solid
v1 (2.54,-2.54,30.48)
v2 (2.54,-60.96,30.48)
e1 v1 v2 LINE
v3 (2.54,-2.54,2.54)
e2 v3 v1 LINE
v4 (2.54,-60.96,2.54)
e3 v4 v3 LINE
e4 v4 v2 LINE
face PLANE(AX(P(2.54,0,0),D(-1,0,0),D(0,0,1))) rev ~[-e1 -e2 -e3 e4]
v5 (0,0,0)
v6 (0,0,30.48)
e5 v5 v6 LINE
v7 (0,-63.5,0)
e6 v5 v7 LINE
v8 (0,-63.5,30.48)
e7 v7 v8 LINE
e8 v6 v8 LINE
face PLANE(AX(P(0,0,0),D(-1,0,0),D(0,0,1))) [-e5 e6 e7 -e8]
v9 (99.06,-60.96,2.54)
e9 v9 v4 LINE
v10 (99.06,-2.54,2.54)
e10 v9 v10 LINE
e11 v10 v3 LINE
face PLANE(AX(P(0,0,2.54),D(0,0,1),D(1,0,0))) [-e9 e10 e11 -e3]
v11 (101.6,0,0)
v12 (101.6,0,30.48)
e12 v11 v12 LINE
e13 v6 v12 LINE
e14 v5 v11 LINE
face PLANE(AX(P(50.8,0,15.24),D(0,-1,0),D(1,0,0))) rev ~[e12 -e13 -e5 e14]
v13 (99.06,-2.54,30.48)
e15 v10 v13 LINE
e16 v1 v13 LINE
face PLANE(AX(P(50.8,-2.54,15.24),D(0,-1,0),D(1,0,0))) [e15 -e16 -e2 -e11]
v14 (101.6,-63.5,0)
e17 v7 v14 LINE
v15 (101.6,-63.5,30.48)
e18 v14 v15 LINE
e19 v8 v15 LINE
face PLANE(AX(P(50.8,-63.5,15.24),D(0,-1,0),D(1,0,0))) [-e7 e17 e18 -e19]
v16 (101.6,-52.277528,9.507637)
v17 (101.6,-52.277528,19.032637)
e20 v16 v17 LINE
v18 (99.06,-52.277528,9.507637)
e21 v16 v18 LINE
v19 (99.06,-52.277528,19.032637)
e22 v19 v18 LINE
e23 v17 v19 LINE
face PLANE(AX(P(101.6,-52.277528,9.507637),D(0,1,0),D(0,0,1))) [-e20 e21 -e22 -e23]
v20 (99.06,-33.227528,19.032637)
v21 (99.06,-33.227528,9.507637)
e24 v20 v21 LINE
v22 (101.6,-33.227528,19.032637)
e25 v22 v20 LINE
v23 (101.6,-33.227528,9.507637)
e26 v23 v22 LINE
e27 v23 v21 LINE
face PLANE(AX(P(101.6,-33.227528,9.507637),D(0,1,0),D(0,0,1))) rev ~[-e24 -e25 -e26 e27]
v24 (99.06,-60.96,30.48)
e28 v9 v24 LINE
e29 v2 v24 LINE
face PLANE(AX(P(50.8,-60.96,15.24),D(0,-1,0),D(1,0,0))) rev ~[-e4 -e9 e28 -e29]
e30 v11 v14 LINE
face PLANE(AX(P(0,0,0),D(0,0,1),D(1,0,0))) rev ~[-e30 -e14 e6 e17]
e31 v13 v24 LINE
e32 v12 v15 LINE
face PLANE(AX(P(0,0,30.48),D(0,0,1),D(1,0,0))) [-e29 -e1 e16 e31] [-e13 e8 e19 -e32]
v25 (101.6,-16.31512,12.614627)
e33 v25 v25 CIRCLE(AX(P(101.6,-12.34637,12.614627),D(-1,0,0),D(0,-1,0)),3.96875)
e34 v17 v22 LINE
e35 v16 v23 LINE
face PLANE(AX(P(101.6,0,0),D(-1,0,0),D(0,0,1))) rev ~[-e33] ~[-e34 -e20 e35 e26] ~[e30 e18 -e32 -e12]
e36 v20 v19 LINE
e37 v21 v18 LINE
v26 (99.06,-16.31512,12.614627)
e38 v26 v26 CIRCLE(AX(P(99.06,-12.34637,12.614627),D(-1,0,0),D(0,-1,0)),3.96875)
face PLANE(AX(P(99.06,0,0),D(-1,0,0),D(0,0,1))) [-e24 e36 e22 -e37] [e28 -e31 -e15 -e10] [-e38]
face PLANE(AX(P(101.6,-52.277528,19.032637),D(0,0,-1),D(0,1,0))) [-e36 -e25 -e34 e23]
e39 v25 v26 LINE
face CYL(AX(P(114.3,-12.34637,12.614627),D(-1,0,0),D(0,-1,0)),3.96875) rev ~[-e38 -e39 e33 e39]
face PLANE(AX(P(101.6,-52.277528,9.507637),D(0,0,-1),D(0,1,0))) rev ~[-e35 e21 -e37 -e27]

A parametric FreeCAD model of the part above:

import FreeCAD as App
import Part
import Sketcher
from FreeCAD import Vector
Q = App.Units.Quantity


def faces_at(feature, points):
    """Names of the faces that lie closest to the given points."""
    faces = feature.Shape.Faces
    near = lambda p: min(range(len(faces)), key=lambda i: faces[i].distToShape(Part.Vertex(*p))[0])
    return sorted({f"Face{near(p) + 1}" for p in points})

doc = App.newDocument("Part")
body = doc.addObject("PartDesign::Body", "Body")

# Sketch on XZ plane
sketch1 = body.newObject("Sketcher::SketchObject", "Sketch")
sketch1.AttachmentSupport = (doc.getObject("XZ_Plane"), [""])
sketch1.MapMode = "FlatFace"
sketch1.addGeometry([
    Part.LineSegment(Vector(0, 30, 0), Vector(0, 0, 0)),
    Part.LineSegment(Vector(0, 0, 0), Vector(102, 0, 0)),
    Part.LineSegment(Vector(102, 0, 0), Vector(102, 30, 0)),
    Part.LineSegment(Vector(102, 30, 0), Vector(0, 30, 0)),
], False)
sketch1.addConstraint([
    Sketcher.Constraint("Coincident", 0, 2, 1, 1),
    Sketcher.Constraint("Coincident", 1, 2, 2, 1),
    Sketcher.Constraint("Coincident", 2, 2, 3, 1),
    Sketcher.Constraint("Coincident", 3, 2, 0, 1),
    Sketcher.Constraint("Vertical", 0),
    Sketcher.Constraint("Horizontal", 1),
    Sketcher.Constraint("Vertical", 2),
    Sketcher.Constraint("Horizontal", 3),
    Sketcher.Constraint("Coincident", 0, 2, -1, 1),
    Sketcher.Constraint("DistanceX", 1, 1, 1, 2, Q("4 in")),
    Sketcher.Constraint("DistanceY", 0, 2, 0, 1, Q("1.2 in")),
])
pad1 = body.newObject("PartDesign::Pad", "Pad")
pad1.Profile = sketch1
pad1.Length = Q("2.5 in")
doc.recompute()

thickness = body.newObject("PartDesign::Thickness", "Thickness")
thickness.Base = (pad1, faces_at(pad1, [(50.8, -31.75, 30.48)]))
thickness.Value = Q("0.1 in")
thickness.Reversed = True
thickness.Join = "Arc"

# Sketch on YZ plane
sketch2 = body.newObject("Sketcher::SketchObject", "Sketch001")
sketch2.AttachmentSupport = (doc.getObject("YZ_Plane"), [""])
sketch2.MapMode = "FlatFace"
sketch2.AttachmentOffset = App.Placement(Vector(0, 0, 4 * 25.4), App.Rotation())
sketch2.addGeometry(Part.Circle(Vector(-12.3, 12.6, 0), Vector(0, 0, 1), 4), False)
sketch2.addConstraint([
    Sketcher.Constraint("Diameter", 0, Q("0.3125 in")),
    Sketcher.Constraint("DistanceX", 0, 3, -1, 1, 12.34637),
    Sketcher.Constraint("DistanceY", -1, 1, 0, 3, 12.614627),
])
doc.recompute()
hole = body.newObject("PartDesign::Hole", "Hole")
hole.Profile = sketch2
hole.ThreadType = "None"
hole.Diameter = Q("0.3125 in")
hole.DepthType = "Dimension"
hole.Depth = Q("0.5 in")
hole.DrillPoint = "Flat"

# Sketch on YZ plane
sketch3 = body.newObject("Sketcher::SketchObject", "Sketch002")
sketch3.AttachmentSupport = (doc.getObject("YZ_Plane"), [""])
sketch3.MapMode = "FlatFace"
sketch3.AttachmentOffset = App.Placement(Vector(0, 0, 4 * 25.4), App.Rotation())
sketch3.addGeometry([
    Part.LineSegment(Vector(-52, 19, 0), Vector(-52, 10, 0)),
    Part.LineSegment(Vector(-52, 10, 0), Vector(-33, 10, 0)),
    Part.LineSegment(Vector(-33, 10, 0), Vector(-33, 19, 0)),
    Part.LineSegment(Vector(-33, 19, 0), Vector(-52, 19, 0)),
], False)
sketch3.addConstraint([
    Sketcher.Constraint("Coincident", 0, 2, 1, 1),
    Sketcher.Constraint("Coincident", 1, 2, 2, 1),
    Sketcher.Constraint("Coincident", 2, 2, 3, 1),
    Sketcher.Constraint("Coincident", 3, 2, 0, 1),
    Sketcher.Constraint("Vertical", 0),
    Sketcher.Constraint("Horizontal", 1),
    Sketcher.Constraint("Vertical", 2),
    Sketcher.Constraint("Horizontal", 3),
    Sketcher.Constraint("DistanceX", 1, 1, 1, 2, Q("0.75 in")),
    Sketcher.Constraint("DistanceY", 0, 2, 0, 1, Q("0.375 in")),
    Sketcher.Constraint("DistanceX", 0, 2, -1, 1, 52.277528),
    Sketcher.Constraint("DistanceY", -1, 1, 0, 2, 9.507637),
])
pocket1 = body.newObject("PartDesign::Pocket", "Pocket")
pocket1.Profile = sketch3
pocket1.Length = Q("1 in")

doc.recompute()
